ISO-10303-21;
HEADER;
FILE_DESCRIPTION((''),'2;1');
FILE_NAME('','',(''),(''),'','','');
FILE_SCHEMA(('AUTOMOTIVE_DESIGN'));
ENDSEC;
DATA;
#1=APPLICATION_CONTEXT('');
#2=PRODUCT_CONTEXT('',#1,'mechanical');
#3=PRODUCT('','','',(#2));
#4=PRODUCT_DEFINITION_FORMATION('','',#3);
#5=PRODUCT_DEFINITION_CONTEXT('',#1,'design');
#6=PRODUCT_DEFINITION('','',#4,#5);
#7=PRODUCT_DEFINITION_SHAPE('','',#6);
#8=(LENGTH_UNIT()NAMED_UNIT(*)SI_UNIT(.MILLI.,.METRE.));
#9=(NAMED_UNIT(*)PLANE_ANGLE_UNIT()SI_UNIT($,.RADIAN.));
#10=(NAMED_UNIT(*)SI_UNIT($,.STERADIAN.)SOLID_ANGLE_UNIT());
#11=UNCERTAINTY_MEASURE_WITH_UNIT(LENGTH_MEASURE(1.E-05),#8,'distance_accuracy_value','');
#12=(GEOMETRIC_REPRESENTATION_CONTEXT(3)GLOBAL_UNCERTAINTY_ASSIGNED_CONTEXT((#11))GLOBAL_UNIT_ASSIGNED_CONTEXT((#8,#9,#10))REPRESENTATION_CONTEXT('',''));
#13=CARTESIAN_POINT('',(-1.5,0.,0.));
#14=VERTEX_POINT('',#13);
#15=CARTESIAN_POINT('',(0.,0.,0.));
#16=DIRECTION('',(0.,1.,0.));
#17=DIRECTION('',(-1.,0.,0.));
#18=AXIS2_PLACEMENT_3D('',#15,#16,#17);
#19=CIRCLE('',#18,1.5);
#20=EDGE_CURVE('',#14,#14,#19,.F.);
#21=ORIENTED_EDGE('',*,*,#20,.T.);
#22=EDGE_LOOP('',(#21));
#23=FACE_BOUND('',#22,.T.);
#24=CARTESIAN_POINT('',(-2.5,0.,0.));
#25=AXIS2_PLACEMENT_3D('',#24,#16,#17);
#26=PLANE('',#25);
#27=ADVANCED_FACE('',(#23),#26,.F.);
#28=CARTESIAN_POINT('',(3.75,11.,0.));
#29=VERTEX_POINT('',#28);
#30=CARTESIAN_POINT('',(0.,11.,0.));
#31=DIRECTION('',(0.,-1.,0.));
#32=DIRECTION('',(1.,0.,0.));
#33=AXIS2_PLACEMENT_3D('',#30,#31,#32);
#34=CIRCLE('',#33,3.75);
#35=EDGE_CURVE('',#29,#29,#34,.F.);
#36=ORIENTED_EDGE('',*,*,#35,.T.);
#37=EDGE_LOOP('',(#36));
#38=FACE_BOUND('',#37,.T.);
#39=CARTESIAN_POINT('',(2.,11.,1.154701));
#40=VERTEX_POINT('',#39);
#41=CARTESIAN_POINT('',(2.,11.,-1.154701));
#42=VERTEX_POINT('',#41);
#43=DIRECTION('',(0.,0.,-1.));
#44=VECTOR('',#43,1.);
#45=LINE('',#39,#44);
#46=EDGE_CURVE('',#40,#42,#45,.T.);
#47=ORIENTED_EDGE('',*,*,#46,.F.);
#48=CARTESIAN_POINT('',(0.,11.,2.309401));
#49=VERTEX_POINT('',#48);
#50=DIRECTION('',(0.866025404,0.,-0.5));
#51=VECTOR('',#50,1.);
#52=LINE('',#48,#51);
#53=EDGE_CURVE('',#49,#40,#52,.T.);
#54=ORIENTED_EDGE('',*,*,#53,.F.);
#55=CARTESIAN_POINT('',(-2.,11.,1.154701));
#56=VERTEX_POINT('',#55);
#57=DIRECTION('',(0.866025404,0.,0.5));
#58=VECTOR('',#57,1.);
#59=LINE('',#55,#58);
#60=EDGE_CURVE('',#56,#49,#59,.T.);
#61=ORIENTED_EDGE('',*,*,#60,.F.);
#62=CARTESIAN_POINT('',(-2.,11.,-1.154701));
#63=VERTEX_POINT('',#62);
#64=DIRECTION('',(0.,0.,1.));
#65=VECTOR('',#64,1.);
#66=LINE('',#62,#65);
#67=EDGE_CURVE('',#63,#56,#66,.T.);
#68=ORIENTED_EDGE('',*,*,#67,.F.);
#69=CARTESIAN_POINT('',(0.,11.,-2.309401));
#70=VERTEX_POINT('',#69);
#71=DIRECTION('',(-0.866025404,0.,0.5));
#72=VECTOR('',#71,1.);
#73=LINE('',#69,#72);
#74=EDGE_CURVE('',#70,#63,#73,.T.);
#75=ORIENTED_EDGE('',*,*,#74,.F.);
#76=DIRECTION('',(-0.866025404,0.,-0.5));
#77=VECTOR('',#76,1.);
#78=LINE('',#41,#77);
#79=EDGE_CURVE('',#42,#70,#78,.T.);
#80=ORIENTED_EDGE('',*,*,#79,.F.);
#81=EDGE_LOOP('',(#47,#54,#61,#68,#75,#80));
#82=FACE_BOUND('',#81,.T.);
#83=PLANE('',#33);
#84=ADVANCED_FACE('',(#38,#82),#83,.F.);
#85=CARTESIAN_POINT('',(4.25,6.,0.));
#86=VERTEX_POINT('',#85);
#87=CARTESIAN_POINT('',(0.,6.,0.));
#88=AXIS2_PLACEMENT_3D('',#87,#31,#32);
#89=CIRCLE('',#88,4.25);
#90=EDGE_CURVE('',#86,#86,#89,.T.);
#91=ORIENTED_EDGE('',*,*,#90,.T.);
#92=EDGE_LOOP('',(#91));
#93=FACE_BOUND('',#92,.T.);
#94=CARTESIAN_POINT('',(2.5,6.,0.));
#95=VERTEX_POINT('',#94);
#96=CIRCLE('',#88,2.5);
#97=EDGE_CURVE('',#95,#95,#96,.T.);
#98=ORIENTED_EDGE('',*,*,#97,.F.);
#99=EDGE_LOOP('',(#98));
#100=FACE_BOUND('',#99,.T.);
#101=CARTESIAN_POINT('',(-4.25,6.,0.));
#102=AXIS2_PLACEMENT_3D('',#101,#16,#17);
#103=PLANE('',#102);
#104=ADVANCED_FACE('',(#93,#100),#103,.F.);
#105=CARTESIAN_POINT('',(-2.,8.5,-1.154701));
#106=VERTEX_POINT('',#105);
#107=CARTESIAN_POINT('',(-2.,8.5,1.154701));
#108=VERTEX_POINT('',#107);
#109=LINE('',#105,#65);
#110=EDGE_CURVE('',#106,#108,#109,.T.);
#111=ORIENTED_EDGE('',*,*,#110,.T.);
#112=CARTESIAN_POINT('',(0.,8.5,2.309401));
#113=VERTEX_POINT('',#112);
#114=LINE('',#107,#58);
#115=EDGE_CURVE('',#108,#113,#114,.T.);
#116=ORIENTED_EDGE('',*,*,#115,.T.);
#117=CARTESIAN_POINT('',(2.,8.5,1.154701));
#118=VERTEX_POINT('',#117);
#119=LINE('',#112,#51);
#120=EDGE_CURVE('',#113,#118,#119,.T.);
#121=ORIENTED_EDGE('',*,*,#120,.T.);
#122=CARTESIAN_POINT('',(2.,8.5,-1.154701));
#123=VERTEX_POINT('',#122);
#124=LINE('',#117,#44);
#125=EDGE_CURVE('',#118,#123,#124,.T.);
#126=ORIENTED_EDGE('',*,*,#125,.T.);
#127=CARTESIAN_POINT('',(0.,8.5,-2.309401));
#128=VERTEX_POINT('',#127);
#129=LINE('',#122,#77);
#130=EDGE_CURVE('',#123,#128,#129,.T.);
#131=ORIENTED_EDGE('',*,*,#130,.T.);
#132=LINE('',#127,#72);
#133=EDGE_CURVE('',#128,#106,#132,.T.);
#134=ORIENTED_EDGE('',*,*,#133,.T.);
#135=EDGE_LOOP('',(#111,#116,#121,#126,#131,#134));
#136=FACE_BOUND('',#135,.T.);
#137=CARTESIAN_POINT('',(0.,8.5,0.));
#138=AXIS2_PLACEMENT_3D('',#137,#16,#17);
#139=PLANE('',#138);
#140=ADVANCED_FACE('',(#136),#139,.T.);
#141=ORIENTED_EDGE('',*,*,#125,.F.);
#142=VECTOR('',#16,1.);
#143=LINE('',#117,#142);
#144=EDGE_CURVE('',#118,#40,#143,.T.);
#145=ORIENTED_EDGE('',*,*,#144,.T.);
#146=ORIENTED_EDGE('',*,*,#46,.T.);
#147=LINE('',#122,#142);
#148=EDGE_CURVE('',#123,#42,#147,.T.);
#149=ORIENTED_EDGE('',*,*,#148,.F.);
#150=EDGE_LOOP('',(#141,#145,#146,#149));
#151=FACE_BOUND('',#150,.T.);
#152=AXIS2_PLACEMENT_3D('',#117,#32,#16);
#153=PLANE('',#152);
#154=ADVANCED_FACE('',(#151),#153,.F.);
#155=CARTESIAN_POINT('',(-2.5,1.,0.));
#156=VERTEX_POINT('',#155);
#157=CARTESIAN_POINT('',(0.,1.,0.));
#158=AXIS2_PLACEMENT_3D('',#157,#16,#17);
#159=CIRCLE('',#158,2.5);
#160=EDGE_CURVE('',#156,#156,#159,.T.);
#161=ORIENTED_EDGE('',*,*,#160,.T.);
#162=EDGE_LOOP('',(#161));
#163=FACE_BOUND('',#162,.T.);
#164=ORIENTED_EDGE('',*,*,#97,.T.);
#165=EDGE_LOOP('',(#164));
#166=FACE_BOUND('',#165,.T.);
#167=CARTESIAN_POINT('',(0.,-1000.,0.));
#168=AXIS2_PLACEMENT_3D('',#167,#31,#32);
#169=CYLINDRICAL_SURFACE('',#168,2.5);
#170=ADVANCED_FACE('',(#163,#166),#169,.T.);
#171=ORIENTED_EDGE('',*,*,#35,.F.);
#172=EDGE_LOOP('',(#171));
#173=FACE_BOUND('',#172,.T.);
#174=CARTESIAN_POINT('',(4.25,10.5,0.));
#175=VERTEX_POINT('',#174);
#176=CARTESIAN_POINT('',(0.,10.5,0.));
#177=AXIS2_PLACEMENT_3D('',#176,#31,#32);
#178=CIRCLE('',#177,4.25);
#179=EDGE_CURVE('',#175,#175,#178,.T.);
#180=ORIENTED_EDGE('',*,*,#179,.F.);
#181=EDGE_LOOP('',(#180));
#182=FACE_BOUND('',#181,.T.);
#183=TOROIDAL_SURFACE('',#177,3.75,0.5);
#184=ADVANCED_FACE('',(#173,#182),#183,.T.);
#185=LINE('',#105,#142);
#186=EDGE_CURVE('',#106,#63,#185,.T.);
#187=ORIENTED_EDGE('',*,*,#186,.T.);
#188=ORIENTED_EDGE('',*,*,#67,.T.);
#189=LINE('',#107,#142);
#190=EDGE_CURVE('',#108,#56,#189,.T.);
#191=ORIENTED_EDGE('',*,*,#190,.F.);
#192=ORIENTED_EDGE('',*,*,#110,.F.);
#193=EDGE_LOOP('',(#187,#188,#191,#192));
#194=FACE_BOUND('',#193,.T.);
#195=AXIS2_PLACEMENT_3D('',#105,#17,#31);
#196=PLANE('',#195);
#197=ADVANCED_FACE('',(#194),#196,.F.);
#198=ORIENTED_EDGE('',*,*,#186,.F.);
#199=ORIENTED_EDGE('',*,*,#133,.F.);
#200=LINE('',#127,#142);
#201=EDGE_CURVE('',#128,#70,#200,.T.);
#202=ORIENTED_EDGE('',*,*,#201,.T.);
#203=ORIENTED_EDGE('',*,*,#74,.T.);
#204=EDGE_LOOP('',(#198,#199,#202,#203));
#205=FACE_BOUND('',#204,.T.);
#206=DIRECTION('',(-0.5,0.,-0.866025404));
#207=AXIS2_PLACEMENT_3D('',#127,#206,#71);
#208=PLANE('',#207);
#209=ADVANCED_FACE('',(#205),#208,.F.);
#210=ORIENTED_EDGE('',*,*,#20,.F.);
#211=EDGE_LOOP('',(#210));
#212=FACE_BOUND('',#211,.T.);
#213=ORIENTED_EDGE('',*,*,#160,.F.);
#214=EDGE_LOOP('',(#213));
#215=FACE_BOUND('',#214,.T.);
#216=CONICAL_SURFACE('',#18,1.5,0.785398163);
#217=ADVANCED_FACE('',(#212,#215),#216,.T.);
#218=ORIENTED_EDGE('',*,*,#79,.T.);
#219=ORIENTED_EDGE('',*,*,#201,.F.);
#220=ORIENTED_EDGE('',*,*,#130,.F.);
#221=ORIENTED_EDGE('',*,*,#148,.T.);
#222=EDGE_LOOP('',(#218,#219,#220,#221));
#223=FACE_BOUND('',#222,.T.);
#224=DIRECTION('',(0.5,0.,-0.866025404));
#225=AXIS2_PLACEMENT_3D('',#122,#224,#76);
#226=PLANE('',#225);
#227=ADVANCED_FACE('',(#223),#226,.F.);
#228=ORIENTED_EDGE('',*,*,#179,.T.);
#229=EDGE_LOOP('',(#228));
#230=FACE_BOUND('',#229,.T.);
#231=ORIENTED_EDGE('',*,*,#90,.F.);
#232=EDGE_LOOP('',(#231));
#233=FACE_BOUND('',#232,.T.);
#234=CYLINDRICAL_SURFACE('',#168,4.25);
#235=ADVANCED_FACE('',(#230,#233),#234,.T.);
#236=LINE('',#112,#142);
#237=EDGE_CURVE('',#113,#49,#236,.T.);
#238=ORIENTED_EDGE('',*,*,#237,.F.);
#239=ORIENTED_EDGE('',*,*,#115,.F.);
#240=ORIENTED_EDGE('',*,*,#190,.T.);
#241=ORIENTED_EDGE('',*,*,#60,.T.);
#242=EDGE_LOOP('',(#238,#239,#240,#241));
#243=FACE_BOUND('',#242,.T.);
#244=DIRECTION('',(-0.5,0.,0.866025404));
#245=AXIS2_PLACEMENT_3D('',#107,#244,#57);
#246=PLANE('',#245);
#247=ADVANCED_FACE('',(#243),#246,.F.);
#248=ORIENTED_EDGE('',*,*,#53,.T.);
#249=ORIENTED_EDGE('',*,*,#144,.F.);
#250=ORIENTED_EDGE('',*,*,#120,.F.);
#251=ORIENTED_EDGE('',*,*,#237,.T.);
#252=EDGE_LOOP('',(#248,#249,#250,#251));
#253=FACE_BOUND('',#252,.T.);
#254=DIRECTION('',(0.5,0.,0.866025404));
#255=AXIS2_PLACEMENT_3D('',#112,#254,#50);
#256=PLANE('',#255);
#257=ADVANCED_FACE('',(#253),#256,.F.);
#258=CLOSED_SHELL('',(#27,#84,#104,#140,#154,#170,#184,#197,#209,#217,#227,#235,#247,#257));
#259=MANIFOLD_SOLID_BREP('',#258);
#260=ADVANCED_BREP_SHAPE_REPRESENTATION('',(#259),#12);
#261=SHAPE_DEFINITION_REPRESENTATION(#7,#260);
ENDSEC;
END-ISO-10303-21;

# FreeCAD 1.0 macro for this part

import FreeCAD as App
import Part
import Sketcher
Q = App.Units.Quantity


def edges_at(feature, points):
    """Names of the edges that pass closest to the given points."""
    edges = feature.Shape.Edges
    near = lambda p: min(range(len(edges)), key=lambda i: edges[i].distToShape(Part.Vertex(*p))[0])
    return sorted({f"Edge{near(p) + 1}" for p in points})


def add_polygon(sketch, points):
    """Adds a closed chain of lines whose ends are joined by coincident constraints."""
    first, n = sketch.GeometryCount, len(points)
    for a, b in zip(points, points[1:] + points[:1]):
        sketch.addGeometry(Part.LineSegment(App.Vector(*a, 0), App.Vector(*b, 0)), False)
    for i in range(n):
        sketch.addConstraint(Sketcher.Constraint("Coincident", first + i, 2, first + (i + 1) % n, 1))

doc = App.newDocument("Part")
body = doc.addObject("PartDesign::Body", "Body")

sketch1 = body.newObject("Sketcher::SketchObject", "Sketch")
sketch1.AttachmentSupport = (doc.getObject("XY_Plane"), [""])
sketch1.MapMode = "FlatFace"
add_polygon(sketch1, [(0, 0), (0, 11), (-4.2, 11), (-4.2, 6), (-2.5, 6), (-2.5, 0)])
sketch1.addConstraint([
    Sketcher.Constraint("Vertical", 0),
    Sketcher.Constraint("Horizontal", 1),
    Sketcher.Constraint("Vertical", 2),
    Sketcher.Constraint("Horizontal", 3),
    Sketcher.Constraint("Vertical", 4),
    Sketcher.Constraint("Horizontal", 5),
    Sketcher.Constraint("Coincident", 5, 2, -1, 1),
    Sketcher.Constraint("DistanceY", 0, 1, 0, 2, 11.0),
    Sketcher.Constraint("DistanceY", 2, 2, 2, 1, 5.0),
    Sketcher.Constraint("DistanceX", 5, 1, 5, 2, 2.5),
    Sketcher.Constraint("DistanceX", 1, 2, 1, 1, 4.25),
])
revolution = body.newObject("PartDesign::Revolution", "Revolution")
revolution.Profile = sketch1
revolution.ReferenceAxis = (sketch1, ["V_Axis"])
revolution.Angle = 360

sketch2 = body.newObject("Sketcher::SketchObject", "Sketch001")
sketch2.AttachmentSupport = (doc.getObject("XZ_Plane"), [""])
sketch2.MapMode = "FlatFace"
sketch2.AttachmentOffset = App.Placement(App.Vector(0, 0, -11), App.Rotation())
add_polygon(sketch2, [(0, -2.3), (-2, -1.2), (-2, 1.2), (0, 2.3), (2, 1.2), (2, -1.2)])
sketch2.addConstraint([
    Sketcher.Constraint("Vertical", 1),
    Sketcher.Constraint("Vertical", 4),
    Sketcher.Constraint("Symmetric", 0, 2, 3, 2, -1, 1),
    Sketcher.Constraint("Symmetric", 2, 2, 5, 2, -1, 1),
    Sketcher.Constraint("PointOnObject", 2, 2, -2),
    Sketcher.Constraint("Parallel", 2, 5),
    Sketcher.Constraint("Horizontal", 1, 2, 3, 2),
    Sketcher.Constraint("Angle", 0, Q("150 deg")),
    Sketcher.Constraint("DistanceX", 0, 2, -1, 1, 2.0),
    Sketcher.Constraint("DistanceY", 1, 1, 1, 2, 2.309401),
])
pocket1 = body.newObject("PartDesign::Pocket", "Pocket")
pocket1.Profile = sketch2
pocket1.Length = 2.5
pocket1.Reversed = True
doc.recompute()

fillet = body.newObject("PartDesign::Fillet", "Fillet")
fillet.Base = (pocket1, edges_at(pocket1, [(-4.25, 11, 0)]))
fillet.Radius = 0.5
doc.recompute()

chamfer = body.newObject("PartDesign::Chamfer", "Chamfer")
chamfer.Base = (fillet, edges_at(fillet, [(-2.5, 0, 0)]))
chamfer.Size = 1

doc.recompute()
